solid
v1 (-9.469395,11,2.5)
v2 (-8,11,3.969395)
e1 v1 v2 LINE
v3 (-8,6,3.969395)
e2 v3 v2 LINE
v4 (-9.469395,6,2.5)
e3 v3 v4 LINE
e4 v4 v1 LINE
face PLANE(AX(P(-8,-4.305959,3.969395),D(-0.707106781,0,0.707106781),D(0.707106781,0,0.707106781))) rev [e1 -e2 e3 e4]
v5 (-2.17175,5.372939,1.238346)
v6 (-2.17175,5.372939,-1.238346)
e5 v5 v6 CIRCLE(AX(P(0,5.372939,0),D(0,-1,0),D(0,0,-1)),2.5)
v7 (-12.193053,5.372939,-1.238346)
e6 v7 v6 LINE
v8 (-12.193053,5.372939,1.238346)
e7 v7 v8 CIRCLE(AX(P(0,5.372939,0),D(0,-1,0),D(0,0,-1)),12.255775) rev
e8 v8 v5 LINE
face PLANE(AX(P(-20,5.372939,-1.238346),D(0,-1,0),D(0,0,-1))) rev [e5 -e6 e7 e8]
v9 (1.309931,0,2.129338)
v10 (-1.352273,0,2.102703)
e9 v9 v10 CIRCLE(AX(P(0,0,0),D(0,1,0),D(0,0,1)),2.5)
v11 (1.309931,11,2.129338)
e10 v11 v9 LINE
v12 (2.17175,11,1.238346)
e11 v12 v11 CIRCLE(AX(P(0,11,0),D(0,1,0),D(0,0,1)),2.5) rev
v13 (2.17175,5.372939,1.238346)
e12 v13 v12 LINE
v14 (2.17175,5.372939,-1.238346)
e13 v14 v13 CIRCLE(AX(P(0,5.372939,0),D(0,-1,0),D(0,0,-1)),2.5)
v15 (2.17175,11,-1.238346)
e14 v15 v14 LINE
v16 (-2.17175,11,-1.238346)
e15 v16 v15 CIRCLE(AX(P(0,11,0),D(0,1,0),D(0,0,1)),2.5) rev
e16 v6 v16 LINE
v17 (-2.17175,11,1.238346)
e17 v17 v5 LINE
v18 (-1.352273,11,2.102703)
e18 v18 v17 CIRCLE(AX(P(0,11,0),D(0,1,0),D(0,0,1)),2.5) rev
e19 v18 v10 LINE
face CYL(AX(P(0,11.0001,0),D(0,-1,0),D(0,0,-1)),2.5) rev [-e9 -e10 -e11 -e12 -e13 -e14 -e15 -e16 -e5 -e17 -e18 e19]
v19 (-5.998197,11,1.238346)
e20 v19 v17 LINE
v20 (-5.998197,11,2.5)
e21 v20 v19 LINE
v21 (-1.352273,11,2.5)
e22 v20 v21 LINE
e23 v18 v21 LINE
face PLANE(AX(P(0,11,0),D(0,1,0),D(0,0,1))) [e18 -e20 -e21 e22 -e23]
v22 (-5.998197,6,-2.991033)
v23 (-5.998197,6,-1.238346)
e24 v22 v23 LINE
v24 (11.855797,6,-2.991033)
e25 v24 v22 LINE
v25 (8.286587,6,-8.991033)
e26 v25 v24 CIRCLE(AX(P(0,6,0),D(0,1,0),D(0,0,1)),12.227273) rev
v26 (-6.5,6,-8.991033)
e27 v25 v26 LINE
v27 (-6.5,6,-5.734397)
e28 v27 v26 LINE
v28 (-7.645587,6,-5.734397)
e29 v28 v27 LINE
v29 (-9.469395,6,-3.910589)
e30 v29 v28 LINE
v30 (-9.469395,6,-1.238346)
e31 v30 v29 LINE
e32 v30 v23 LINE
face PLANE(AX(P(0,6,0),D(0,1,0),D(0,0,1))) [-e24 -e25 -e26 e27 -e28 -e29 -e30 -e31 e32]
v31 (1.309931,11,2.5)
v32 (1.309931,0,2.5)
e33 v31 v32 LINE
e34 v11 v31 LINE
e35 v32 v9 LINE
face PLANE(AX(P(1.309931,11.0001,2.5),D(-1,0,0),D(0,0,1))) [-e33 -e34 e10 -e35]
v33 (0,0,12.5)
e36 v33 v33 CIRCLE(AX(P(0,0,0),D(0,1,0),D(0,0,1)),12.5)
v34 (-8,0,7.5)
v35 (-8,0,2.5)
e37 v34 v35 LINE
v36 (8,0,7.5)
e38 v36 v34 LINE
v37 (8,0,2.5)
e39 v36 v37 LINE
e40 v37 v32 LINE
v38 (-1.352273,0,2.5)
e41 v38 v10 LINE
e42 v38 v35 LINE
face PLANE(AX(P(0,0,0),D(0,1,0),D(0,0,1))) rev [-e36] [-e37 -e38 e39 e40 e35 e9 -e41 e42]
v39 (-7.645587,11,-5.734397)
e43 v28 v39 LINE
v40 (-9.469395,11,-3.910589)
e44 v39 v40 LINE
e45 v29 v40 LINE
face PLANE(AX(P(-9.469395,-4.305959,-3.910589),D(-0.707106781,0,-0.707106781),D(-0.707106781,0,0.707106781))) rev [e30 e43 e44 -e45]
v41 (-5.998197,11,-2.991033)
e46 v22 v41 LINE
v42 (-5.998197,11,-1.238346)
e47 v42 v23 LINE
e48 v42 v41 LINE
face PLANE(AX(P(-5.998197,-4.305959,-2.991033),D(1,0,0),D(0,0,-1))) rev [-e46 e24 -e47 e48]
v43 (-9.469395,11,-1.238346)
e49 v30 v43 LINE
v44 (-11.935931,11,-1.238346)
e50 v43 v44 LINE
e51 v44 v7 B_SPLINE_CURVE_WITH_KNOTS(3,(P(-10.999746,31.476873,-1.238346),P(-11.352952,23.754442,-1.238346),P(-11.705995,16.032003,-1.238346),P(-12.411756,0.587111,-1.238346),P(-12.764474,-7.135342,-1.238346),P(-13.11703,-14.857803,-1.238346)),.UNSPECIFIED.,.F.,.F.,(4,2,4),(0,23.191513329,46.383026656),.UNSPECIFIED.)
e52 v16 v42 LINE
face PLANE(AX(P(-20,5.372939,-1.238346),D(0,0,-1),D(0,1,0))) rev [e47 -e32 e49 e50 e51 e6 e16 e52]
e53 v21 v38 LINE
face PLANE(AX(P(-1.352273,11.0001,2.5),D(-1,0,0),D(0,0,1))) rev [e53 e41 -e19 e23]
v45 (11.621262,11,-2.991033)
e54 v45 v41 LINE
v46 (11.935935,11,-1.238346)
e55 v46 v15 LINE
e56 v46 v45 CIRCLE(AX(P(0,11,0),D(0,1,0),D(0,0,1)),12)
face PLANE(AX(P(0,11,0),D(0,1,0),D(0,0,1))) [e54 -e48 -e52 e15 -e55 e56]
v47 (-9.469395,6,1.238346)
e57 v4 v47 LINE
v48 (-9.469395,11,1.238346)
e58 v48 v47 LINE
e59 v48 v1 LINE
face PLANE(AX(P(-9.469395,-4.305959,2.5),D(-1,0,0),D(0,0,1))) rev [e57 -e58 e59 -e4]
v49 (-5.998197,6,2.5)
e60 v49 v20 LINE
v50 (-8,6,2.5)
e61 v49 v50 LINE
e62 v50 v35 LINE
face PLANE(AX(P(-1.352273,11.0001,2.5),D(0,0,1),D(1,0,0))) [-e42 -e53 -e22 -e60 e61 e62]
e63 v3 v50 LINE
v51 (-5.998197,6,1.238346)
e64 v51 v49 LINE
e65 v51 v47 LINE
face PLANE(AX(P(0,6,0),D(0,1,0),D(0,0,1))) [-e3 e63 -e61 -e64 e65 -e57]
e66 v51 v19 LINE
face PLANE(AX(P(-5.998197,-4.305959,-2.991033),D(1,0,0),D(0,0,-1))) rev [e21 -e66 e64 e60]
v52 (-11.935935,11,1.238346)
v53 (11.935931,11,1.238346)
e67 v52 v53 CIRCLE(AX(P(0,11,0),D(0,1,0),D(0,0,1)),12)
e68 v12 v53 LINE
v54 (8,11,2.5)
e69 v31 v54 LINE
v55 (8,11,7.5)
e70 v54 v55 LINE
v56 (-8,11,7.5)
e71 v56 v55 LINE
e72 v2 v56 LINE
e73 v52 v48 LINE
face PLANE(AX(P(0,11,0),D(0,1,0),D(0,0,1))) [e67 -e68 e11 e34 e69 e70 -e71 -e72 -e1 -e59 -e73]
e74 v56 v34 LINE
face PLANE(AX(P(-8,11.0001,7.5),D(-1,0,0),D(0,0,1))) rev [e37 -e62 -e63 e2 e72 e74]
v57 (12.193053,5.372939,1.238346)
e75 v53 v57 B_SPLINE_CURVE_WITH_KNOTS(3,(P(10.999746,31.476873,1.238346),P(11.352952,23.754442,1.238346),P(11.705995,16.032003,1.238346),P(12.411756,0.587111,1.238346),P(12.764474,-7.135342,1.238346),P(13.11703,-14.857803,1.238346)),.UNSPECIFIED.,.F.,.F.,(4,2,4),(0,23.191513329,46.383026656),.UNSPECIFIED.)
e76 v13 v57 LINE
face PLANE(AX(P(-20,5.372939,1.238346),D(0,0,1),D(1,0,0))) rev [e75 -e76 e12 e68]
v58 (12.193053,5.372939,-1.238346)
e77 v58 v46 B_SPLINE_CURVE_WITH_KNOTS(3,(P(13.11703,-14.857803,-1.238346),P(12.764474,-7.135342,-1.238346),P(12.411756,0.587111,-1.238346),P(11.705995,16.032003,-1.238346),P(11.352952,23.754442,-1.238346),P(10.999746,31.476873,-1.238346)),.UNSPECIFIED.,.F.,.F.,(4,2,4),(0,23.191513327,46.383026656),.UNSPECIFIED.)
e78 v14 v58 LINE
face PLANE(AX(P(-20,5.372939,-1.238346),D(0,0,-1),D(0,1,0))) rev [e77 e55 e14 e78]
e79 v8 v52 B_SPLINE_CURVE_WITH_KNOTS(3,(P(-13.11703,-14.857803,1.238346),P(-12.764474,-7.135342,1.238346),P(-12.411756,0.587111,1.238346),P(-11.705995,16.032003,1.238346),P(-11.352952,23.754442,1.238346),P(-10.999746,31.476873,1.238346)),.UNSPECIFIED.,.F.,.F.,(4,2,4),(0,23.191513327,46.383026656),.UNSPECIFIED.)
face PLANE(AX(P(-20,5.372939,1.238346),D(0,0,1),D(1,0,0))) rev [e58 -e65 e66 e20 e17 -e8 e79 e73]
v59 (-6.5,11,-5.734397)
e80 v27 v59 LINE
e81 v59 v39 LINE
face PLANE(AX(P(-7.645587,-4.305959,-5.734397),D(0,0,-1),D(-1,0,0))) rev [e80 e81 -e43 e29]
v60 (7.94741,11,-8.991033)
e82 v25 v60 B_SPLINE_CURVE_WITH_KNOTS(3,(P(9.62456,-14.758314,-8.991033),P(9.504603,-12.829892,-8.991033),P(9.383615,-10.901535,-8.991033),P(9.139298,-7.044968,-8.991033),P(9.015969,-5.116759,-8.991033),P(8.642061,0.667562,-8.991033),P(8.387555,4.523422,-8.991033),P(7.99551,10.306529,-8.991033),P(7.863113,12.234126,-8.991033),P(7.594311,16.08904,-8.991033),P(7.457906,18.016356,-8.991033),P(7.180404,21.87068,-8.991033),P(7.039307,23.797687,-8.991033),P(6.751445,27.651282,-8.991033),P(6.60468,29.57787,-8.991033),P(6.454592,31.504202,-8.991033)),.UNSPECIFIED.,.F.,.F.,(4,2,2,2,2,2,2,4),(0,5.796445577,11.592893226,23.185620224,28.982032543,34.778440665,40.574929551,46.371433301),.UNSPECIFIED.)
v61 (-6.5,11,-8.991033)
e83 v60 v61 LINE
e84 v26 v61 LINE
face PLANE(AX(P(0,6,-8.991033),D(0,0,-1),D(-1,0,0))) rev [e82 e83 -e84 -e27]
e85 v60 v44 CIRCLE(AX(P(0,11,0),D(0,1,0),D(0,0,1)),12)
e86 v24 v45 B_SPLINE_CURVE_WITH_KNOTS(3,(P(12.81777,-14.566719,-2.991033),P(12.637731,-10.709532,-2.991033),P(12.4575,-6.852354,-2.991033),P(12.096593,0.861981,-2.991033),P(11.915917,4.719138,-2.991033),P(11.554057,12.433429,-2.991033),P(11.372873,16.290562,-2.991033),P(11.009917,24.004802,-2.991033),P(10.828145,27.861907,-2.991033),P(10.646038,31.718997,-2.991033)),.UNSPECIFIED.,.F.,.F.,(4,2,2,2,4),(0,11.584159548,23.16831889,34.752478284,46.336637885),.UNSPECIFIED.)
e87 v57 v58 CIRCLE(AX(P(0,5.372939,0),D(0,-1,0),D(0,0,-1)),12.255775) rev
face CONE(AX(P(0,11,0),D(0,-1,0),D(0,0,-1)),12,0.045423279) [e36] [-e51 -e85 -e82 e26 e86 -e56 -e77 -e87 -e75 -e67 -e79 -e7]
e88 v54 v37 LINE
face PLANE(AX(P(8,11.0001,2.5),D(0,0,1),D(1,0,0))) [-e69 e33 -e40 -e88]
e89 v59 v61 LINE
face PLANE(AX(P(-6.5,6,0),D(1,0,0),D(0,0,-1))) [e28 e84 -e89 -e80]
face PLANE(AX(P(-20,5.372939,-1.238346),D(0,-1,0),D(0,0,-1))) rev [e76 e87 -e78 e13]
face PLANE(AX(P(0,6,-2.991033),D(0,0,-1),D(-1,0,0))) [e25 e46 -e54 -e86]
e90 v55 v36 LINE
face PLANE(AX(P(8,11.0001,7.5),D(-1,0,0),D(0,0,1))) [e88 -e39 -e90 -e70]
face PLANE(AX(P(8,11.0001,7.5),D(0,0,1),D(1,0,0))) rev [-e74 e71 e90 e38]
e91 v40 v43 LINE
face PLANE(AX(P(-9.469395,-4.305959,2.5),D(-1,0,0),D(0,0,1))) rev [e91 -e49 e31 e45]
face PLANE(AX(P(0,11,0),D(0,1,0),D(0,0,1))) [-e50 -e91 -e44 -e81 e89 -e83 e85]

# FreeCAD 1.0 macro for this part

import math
import FreeCAD as App
import Part
import Sketcher

V = App.Vector
Q = App.Units.Quantity

doc = App.newDocument("Part")
params = doc.addObject("Spreadsheet::Sheet", "Params")
for row, (alias, value) in enumerate([
    ("sketch1_diameter", "24 mm"),
    ("sketch2_diameter", "25 mm"),
    ("sketch3_radius", "2.5 mm"),
    ("sketch3_width", "16 mm"),
    ("sketch3_height", "5 mm"),
    ("sketch4_height", "6 mm"),
    ("pocket2_length", "5 mm"),
    ("pocket3_length", "40 mm"),
    ("pocket4_length", "5 mm"),
], start=1):
    params.set(f"A{row}", alias)
    params.set(f"B{row}", "=" + value)
    params.setAlias(f"B{row}", alias)

body = doc.addObject("PartDesign::Body", "Body")

sketch1 = body.newObject("Sketcher::SketchObject", "Sketch")
sketch1.AttachmentSupport = (doc.getObject("XZ_Plane"), [""])
sketch1.MapMode = "FlatFace"
sketch1.AttachmentOffset = App.Placement(V(0, 0, -11), App.Rotation())
sketch1.addGeometry(Part.Circle(V(0, 0, 0), V(0, 0, 1), 12), False)
sketch1.addConstraint(Sketcher.Constraint("Coincident", 0, 3, -1, 1))
sketch1.addConstraint(Sketcher.Constraint("Diameter", 0, Q("24 mm")))
sketch1.setExpression("Constraints[1]", "Params.sketch1_diameter")

sketch2 = body.newObject("Sketcher::SketchObject", "Sketch001")
sketch2.AttachmentSupport = (doc.getObject("XZ_Plane"), [""])
sketch2.MapMode = "FlatFace"
sketch2.addGeometry(Part.Circle(V(0, 0, 0), V(0, 0, 1), 12), False)
sketch2.addConstraint(Sketcher.Constraint("Coincident", 0, 3, -1, 1))
sketch2.addConstraint(Sketcher.Constraint("Diameter", 0, Q("25 mm")))
sketch2.setExpression("Constraints[1]", "Params.sketch2_diameter")

additiveloft = body.newObject("PartDesign::AdditiveLoft", "AdditiveLoft")
additiveloft.Profile = sketch1
additiveloft.Sections = [sketch2]

sketch3 = body.newObject("Sketcher::SketchObject", "Sketch002")
sketch3.AttachmentSupport = (doc.getObject("XZ_Plane"), [""])
sketch3.MapMode = "FlatFace"
sketch3.addGeometry(Part.LineSegment(V(-1.35, 2.1, 0), V(-1.35, 2.5, 0)), False)
sketch3.addGeometry(Part.LineSegment(V(-1.35, 2.5, 0), V(-8, 2.5, 0)), False)
sketch3.addGeometry(Part.LineSegment(V(-8, 2.5, 0), V(-8, 7.5, 0)), False)
sketch3.addGeometry(Part.LineSegment(V(-8, 7.5, 0), V(8, 7.5, 0)), False)
sketch3.addGeometry(Part.LineSegment(V(8, 7.5, 0), V(8, 2.5, 0)), False)
sketch3.addGeometry(Part.LineSegment(V(8, 2.5, 0), V(1.31, 2.5, 0)), False)
sketch3.addGeometry(Part.LineSegment(V(1.31, 2.5, 0), V(1.31, 2.13, 0)), False)
sketch3.addGeometry(Part.ArcOfCircle(Part.Circle(V(0, 0, 0), V(0, 0, 1), 2.5), math.radians(123), math.radians(418)), False)
sketch3.addConstraint(Sketcher.Constraint("Coincident", 0, 2, 1, 1))
sketch3.addConstraint(Sketcher.Constraint("Coincident", 1, 2, 2, 1))
sketch3.addConstraint(Sketcher.Constraint("Coincident", 2, 2, 3, 1))
sketch3.addConstraint(Sketcher.Constraint("Coincident", 3, 2, 4, 1))
sketch3.addConstraint(Sketcher.Constraint("Coincident", 4, 2, 5, 1))
sketch3.addConstraint(Sketcher.Constraint("Coincident", 5, 2, 6, 1))
sketch3.addConstraint(Sketcher.Constraint("Coincident", 6, 2, 7, 2))
sketch3.addConstraint(Sketcher.Constraint("Coincident", 7, 1, 0, 1))
sketch3.addConstraint(Sketcher.Constraint("Vertical", 0))
sketch3.addConstraint(Sketcher.Constraint("Horizontal", 1))
sketch3.addConstraint(Sketcher.Constraint("Vertical", 2))
sketch3.addConstraint(Sketcher.Constraint("Horizontal", 3))
sketch3.addConstraint(Sketcher.Constraint("Vertical", 4))
sketch3.addConstraint(Sketcher.Constraint("Horizontal", 5))
sketch3.addConstraint(Sketcher.Constraint("Vertical", 6))
sketch3.addConstraint(Sketcher.Constraint("Coincident", 7, 3, -1, 1))
sketch3.addConstraint(Sketcher.Constraint("Symmetric", 1, 2, 4, 2, -2))
sketch3.addConstraint(Sketcher.Constraint("Radius", 7, Q("2.5 mm")))
sketch3.addConstraint(Sketcher.Constraint("DistanceX", 3, 1, 3, 2, Q("16 mm")))
sketch3.addConstraint(Sketcher.Constraint("DistanceY", 2, 1, 2, 2, Q("5 mm")))
sketch3.addConstraint(Sketcher.Constraint("DistanceY", -1, 1, 0, 2, Q("2.5 mm")))
sketch3.addConstraint(Sketcher.Constraint("DistanceX", 5, 2, 5, 1, Q("6.690069 mm")))
sketch3.addConstraint(Sketcher.Constraint("DistanceX", 1, 2, 1, 1, Q("6.647727 mm")))
sketch3.setExpression("Constraints[17]", "Params.sketch3_radius")
sketch3.setExpression("Constraints[18]", "Params.sketch3_width")
sketch3.setExpression("Constraints[19]", "Params.sketch3_height")
pocket1 = body.newObject("PartDesign::Pocket", "Pocket")
pocket1.Profile = sketch3
pocket1.Type = "ThroughAll"

sketch4 = body.newObject("Sketcher::SketchObject", "Sketch003")
sketch4.AttachmentSupport = (doc.getObject("XZ_Plane"), [""])
sketch4.MapMode = "FlatFace"
sketch4.AttachmentOffset = App.Placement(V(0, 0, -11), App.Rotation())
sketch4.addGeometry(Part.LineSegment(V(-6, -9, 0), V(-6, -3, 0)), False)
sketch4.addGeometry(Part.LineSegment(V(-6, -3, 0), V(15, -3, 0)), False)
sketch4.addGeometry(Part.LineSegment(V(15, -3, 0), V(15, -9, 0)), False)
sketch4.addGeometry(Part.LineSegment(V(15, -9, 0), V(-6, -9, 0)), False)
sketch4.addConstraint(Sketcher.Constraint("Coincident", 0, 2, 1, 1))
sketch4.addConstraint(Sketcher.Constraint("Coincident", 1, 2, 2, 1))
sketch4.addConstraint(Sketcher.Constraint("Coincident", 2, 2, 3, 1))
sketch4.addConstraint(Sketcher.Constraint("Coincident", 3, 2, 0, 1))
sketch4.addConstraint(Sketcher.Constraint("Vertical", 0))
sketch4.addConstraint(Sketcher.Constraint("Horizontal", 1))
sketch4.addConstraint(Sketcher.Constraint("Vertical", 2))
sketch4.addConstraint(Sketcher.Constraint("Horizontal", 3))
sketch4.addConstraint(Sketcher.Constraint("DistanceY", 0, 1, 0, 2, Q("6 mm")))
sketch4.addConstraint(Sketcher.Constraint("DistanceX", 0, 2, -1, 1, Q("6.5 mm")))
sketch4.addConstraint(Sketcher.Constraint("DistanceX", 1, 1, 1, 2, Q("21.848611 mm")))
sketch4.addConstraint(Sketcher.Constraint("DistanceY", 0, 2, -1, 1, Q("2.991033 mm")))
sketch4.setExpression("Constraints[8]", "Params.sketch4_height")
pocket2 = body.newObject("PartDesign::Pocket", "Pocket001")
pocket2.Profile = sketch4
pocket2.setExpression("Length", "Params.pocket2_length")
pocket2.Reversed = True

sketch5 = body.newObject("Sketcher::SketchObject", "Sketch004")
sketch5.AttachmentSupport = (doc.getObject("YZ_Plane"), [""])
sketch5.MapMode = "FlatFace"
sketch5.addGeometry(Part.LineSegment(V(12.2, 1.2, 0), V(5.4, 1.2, 0)), False)
sketch5.addGeometry(Part.LineSegment(V(5.4, 1.2, 0), V(5.4, -1.2, 0)), False)
sketch5.addGeometry(Part.LineSegment(V(5.4, -1.2, 0), V(12.2, -1.2, 0)), False)
sketch5.addGeometry(Part.LineSegment(V(12.2, -1.2, 0), V(12.2, 1.2, 0)), False)
sketch5.addConstraint(Sketcher.Constraint("Coincident", 0, 2, 1, 1))
sketch5.addConstraint(Sketcher.Constraint("Coincident", 1, 2, 2, 1))
sketch5.addConstraint(Sketcher.Constraint("Coincident", 2, 2, 3, 1))
sketch5.addConstraint(Sketcher.Constraint("Coincident", 3, 2, 0, 1))
sketch5.addConstraint(Sketcher.Constraint("Horizontal", 0))
sketch5.addConstraint(Sketcher.Constraint("Vertical", 1))
sketch5.addConstraint(Sketcher.Constraint("Horizontal", 2))
sketch5.addConstraint(Sketcher.Constraint("Vertical", 3))
sketch5.addConstraint(Sketcher.Constraint("DistanceX", 0, 2, 0, 1, Q("6.835213 mm")))
sketch5.addConstraint(Sketcher.Constraint("DistanceY", 1, 2, 1, 1, Q("2.476692 mm")))
sketch5.addConstraint(Sketcher.Constraint("DistanceX", -1, 1, 0, 2, Q("5.372939 mm")))
sketch5.addConstraint(Sketcher.Constraint("DistanceY", -1, 1, 0, 2, Q("1.238346 mm")))
pocket3 = body.newObject("PartDesign::Pocket", "Pocket002")
pocket3.Profile = sketch5
pocket3.setExpression("Length", "Params.pocket3_length")
pocket3.Midplane = True

sketch6 = body.newObject("Sketcher::SketchObject", "Sketch005")
sketch6.AttachmentSupport = (doc.getObject("XZ_Plane"), [""])
sketch6.MapMode = "FlatFace"
sketch6.AttachmentOffset = App.Placement(V(0, 0, -11), App.Rotation())
sketch6.addGeometry(Part.LineSegment(V(-6, 4, 0), V(-6, -3, 0)), False)
sketch6.addGeometry(Part.LineSegment(V(-6, -3, 0), V(-6.5, -5.7, 0)), False)
sketch6.addGeometry(Part.LineSegment(V(-6.5, -5.7, 0), V(-7.6, -5.7, 0)), False)
sketch6.addGeometry(Part.LineSegment(V(-7.6, -5.7, 0), V(-9.5, -3.9, 0)), False)
sketch6.addGeometry(Part.LineSegment(V(-9.5, -3.9, 0), V(-9.5, 2.5, 0)), False)
sketch6.addGeometry(Part.LineSegment(V(-9.5, 2.5, 0), V(-8, 4, 0)), False)
sketch6.addGeometry(Part.LineSegment(V(-8, 4, 0), V(-6, 4, 0)), False)
sketch6.addConstraint(Sketcher.Constraint("Coincident", 0, 2, 1, 1))
sketch6.addConstraint(Sketcher.Constraint("Coincident", 1, 2, 2, 1))
sketch6.addConstraint(Sketcher.Constraint("Coincident", 2, 2, 3, 1))
sketch6.addConstraint(Sketcher.Constraint("Coincident", 3, 2, 4, 1))
sketch6.addConstraint(Sketcher.Constraint("Coincident", 4, 2, 5, 1))
sketch6.addConstraint(Sketcher.Constraint("Coincident", 5, 2, 6, 1))
sketch6.addConstraint(Sketcher.Constraint("Coincident", 6, 2, 0, 1))
sketch6.addConstraint(Sketcher.Constraint("Vertical", 0))
sketch6.addConstraint(Sketcher.Constraint("Horizontal", 2))
sketch6.addConstraint(Sketcher.Constraint("Vertical", 4))
sketch6.addConstraint(Sketcher.Constraint("Horizontal", 6))
sketch6.addConstraint(Sketcher.Constraint("Perpendicular", 3, 5))
sketch6.addConstraint(Sketcher.Constraint("Angle", 3, Q("135 deg")))
sketch6.addConstraint(Sketcher.Constraint("DistanceX", 5, 2, -1, 1, Q("8 mm")))
sketch6.addConstraint(Sketcher.Constraint("DistanceX", 1, 2, -1, 1, Q("6.5 mm")))
sketch6.addConstraint(Sketcher.Constraint("DistanceY", -1, 1, 4, 2, Q("2.5 mm")))
sketch6.addConstraint(Sketcher.Constraint("DistanceY", 4, 1, 4, 2, Q("6.410589 mm")))
sketch6.addConstraint(Sketcher.Constraint("DistanceX", 3, 2, 0, 2, Q("3.471198 mm")))
sketch6.addConstraint(Sketcher.Constraint("Distance", 1, Q("2.788881 mm")))
sketch6.addConstraint(Sketcher.Constraint("Distance", 5, Q("2.078038 mm")))
sketch6.addConstraint(Sketcher.Constraint("DistanceX", 2, 2, 2, 1, Q("1.145587 mm")))
pocket4 = body.newObject("PartDesign::Pocket", "Pocket003")
pocket4.Profile = sketch6
pocket4.setExpression("Length", "Params.pocket4_length")
pocket4.Reversed = True

doc.recompute()
